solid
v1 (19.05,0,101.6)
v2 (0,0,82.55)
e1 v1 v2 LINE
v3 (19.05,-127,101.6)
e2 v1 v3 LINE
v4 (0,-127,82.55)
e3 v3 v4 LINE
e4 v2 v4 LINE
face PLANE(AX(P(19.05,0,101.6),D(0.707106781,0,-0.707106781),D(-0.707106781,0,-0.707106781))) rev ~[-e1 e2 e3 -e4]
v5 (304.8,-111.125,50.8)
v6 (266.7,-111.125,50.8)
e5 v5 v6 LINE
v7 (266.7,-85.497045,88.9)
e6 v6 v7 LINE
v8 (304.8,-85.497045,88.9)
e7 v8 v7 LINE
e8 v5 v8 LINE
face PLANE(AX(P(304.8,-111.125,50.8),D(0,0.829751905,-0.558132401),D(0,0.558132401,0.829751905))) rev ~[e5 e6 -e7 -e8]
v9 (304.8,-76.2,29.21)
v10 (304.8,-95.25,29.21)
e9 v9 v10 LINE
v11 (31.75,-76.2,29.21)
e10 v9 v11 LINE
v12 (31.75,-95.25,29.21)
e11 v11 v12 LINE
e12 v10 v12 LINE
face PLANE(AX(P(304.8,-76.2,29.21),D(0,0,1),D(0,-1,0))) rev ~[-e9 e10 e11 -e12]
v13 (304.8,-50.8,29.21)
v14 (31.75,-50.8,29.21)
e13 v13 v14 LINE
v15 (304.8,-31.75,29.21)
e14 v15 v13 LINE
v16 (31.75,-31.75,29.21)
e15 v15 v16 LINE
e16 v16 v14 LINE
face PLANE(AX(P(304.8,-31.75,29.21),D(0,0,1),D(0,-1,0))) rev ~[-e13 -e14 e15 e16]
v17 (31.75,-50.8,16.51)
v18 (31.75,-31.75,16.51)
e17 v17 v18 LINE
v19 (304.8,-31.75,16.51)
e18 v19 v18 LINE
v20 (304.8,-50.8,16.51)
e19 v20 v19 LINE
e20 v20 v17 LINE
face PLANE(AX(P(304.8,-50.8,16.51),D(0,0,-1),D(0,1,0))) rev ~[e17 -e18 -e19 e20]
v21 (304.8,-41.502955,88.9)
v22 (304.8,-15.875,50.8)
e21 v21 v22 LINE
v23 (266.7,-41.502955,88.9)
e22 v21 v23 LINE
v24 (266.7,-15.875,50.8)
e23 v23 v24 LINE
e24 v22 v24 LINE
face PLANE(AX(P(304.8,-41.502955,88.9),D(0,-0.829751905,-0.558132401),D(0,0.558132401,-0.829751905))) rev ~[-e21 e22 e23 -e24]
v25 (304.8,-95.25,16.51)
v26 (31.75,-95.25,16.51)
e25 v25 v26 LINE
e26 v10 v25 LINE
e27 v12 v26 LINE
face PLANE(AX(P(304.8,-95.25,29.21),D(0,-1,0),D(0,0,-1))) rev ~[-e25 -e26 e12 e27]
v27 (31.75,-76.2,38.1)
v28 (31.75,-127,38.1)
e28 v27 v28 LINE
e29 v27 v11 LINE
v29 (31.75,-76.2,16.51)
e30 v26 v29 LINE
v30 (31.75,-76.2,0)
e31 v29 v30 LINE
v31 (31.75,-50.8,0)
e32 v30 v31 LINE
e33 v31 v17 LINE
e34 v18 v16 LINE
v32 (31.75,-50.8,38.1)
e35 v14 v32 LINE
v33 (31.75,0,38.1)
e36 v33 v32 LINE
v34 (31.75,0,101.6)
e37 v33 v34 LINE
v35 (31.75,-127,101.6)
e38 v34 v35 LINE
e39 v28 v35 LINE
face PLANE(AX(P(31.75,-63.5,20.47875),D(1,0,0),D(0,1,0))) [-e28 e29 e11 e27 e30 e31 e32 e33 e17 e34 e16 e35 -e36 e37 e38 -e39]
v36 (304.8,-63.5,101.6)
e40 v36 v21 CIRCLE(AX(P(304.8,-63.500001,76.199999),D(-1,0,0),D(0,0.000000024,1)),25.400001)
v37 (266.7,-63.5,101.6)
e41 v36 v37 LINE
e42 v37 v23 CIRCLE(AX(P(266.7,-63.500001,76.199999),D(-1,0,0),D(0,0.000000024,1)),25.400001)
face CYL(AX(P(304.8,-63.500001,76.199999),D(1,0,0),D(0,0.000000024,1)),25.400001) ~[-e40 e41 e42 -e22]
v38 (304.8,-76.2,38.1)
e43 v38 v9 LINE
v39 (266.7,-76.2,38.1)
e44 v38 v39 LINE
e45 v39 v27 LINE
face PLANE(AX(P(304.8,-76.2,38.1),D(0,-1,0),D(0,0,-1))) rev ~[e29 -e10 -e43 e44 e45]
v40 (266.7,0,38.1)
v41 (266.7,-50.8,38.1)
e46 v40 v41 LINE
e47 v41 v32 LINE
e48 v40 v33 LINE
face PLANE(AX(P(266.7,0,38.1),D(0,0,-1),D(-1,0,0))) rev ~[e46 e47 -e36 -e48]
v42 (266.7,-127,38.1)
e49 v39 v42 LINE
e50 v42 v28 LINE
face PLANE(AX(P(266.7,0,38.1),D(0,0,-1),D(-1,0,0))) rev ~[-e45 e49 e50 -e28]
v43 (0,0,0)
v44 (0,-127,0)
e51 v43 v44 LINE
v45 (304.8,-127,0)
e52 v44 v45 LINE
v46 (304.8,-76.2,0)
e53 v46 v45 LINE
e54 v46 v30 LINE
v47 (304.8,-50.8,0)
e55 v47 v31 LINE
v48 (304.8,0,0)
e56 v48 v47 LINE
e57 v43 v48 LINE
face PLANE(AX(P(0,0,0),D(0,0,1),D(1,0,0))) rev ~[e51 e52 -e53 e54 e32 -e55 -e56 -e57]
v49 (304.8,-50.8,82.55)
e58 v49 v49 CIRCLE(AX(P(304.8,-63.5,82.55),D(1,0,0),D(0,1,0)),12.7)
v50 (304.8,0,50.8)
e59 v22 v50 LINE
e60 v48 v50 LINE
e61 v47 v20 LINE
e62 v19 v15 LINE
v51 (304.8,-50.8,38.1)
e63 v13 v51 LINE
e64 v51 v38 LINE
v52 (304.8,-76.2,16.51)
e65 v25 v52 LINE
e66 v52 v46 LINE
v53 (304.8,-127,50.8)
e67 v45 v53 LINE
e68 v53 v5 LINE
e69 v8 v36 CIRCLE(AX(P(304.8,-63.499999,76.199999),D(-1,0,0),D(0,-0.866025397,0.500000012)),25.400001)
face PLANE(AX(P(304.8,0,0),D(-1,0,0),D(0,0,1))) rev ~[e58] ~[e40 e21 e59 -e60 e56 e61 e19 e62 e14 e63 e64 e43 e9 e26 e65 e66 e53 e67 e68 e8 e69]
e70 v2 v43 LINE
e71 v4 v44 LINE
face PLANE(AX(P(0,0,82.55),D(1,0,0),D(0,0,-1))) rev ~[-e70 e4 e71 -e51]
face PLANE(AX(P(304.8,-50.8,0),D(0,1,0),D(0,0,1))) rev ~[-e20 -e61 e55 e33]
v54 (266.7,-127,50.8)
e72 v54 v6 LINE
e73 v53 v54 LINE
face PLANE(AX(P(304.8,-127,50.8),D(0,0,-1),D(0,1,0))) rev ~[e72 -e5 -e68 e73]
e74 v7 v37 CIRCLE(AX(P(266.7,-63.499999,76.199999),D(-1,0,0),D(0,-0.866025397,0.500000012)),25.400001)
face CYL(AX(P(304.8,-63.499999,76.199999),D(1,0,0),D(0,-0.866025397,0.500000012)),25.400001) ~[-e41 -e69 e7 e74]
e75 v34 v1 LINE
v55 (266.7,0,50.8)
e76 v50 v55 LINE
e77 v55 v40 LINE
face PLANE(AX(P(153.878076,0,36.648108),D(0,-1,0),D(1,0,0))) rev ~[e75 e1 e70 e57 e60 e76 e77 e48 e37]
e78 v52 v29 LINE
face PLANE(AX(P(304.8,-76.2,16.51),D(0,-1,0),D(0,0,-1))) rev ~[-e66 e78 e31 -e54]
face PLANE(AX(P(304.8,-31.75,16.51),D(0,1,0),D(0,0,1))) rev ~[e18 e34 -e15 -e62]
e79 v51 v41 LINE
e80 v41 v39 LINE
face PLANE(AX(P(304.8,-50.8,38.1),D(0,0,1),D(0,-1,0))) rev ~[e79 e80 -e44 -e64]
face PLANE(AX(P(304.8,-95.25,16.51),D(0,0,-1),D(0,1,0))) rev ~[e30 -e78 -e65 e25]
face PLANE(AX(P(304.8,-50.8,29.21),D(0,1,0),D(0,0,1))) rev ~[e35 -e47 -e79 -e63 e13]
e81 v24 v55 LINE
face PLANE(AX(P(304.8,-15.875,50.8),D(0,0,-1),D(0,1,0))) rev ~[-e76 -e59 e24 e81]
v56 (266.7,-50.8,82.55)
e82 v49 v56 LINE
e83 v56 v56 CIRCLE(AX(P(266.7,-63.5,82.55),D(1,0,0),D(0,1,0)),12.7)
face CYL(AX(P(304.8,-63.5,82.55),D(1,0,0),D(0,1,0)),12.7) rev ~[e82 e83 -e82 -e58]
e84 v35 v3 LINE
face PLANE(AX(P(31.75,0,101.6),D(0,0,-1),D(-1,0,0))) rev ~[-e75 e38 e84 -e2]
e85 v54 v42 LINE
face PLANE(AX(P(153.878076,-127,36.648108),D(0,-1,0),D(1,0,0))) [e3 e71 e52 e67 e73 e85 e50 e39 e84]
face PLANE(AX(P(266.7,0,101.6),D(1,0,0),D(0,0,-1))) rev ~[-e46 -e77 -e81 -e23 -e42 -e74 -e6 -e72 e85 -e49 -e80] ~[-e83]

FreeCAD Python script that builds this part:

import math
import FreeCAD as App
import Part
import Sketcher

V = App.Vector
Q = App.Units.Quantity

doc = App.newDocument("Part")
body = doc.addObject("PartDesign::Body", "Body")

sketch1 = body.newObject("Sketcher::SketchObject", "Sketch")
sketch1.AttachmentSupport = (doc.getObject("XZ_Plane"), [""])
sketch1.MapMode = "FlatFace"
sketch1.addGeometry([
    Part.LineSegment(V(0, 82.55, 0), V(0, 0, 0)),
    Part.LineSegment(V(0, 0, 0), V(304.8, 0, 0)),
    Part.LineSegment(V(304.8, 0, 0), V(304.8, 101.6, 0)),
    Part.LineSegment(V(304.8, 101.6, 0), V(266.7, 101.6, 0)),
    Part.LineSegment(V(266.7, 101.6, 0), V(266.7, 38.1, 0)),
    Part.LineSegment(V(266.7, 38.1, 0), V(31.75, 38.1, 0)),
    Part.LineSegment(V(31.75, 38.1, 0), V(31.75, 101.6, 0)),
    Part.LineSegment(V(31.75, 101.6, 0), V(19.05, 101.6, 0)),
    Part.LineSegment(V(19.05, 101.6, 0), V(0, 82.55, 0)),
], False)
sketch1.addConstraint([
    Sketcher.Constraint("Coincident", 0, 2, 1, 1),
    Sketcher.Constraint("Coincident", 1, 2, 2, 1),
    Sketcher.Constraint("Coincident", 2, 2, 3, 1),
    Sketcher.Constraint("Coincident", 3, 2, 4, 1),
    Sketcher.Constraint("Coincident", 4, 2, 5, 1),
    Sketcher.Constraint("Coincident", 5, 2, 6, 1),
    Sketcher.Constraint("Coincident", 6, 2, 7, 1),
    Sketcher.Constraint("Coincident", 7, 2, 8, 1),
    Sketcher.Constraint("Coincident", 8, 2, 0, 1),
    Sketcher.Constraint("Vertical", 0),
    Sketcher.Constraint("Horizontal", 1),
    Sketcher.Constraint("Vertical", 2),
    Sketcher.Constraint("Horizontal", 3),
    Sketcher.Constraint("Vertical", 4),
    Sketcher.Constraint("Horizontal", 5),
    Sketcher.Constraint("Vertical", 6),
    Sketcher.Constraint("Horizontal", 7),
    Sketcher.Constraint("Coincident", 0, 2, -1, 1),
    Sketcher.Constraint("Horizontal", 3, 2, 6, 2),
    Sketcher.Constraint("DistanceX", 1, 1, 1, 2, Q("12 in")),
    Sketcher.Constraint("DistanceY", 2, 1, 2, 2, Q("4 in")),
    Sketcher.Constraint("DistanceX", 3, 2, 3, 1, Q("1.5 in")),
    Sketcher.Constraint("DistanceX", 7, 2, 7, 1, Q("0.5 in")),
    Sketcher.Constraint("DistanceY", 4, 2, 4, 1, Q("2.5 in")),
    Sketcher.Constraint("Angle", 8, Q("-135 deg")),
    Sketcher.Constraint("DistanceX", 5, 2, 5, 1, Q("9.25 in")),
])
pad1 = body.newObject("PartDesign::Pad", "Pad")
pad1.Profile = sketch1
pad1.Length = Q("5 in")

sketch2 = body.newObject("Sketcher::SketchObject", "Sketch001")
sketch2.AttachmentSupport = (doc.getObject("YZ_Plane"), [""])
sketch2.MapMode = "FlatFace"
sketch2.AttachmentOffset = App.Placement(V(0, 0, 12 * 25.4), App.Rotation())
sketch2.addGeometry([
    Part.LineSegment(V(-127, 101.6, 0), V(-127, 50.8, 0)),
    Part.LineSegment(V(-127, 50.8, 0), V(-111.125, 50.8, 0)),
    Part.LineSegment(V(-111.125, 50.8, 0), V(-85.497045, 88.9, 0)),
    Part.ArcOfCircle(Part.Circle(V(-63.499999, 76.199999, 0), V(0, 0, 1), 25.400001), math.radians(90.000001), math.radians(149.999999)),
    Part.LineSegment(V(-63.5, 101.6, 0), V(-127, 101.6, 0)),
    Part.LineSegment(V(0, 101.6, 0), V(-63.5, 101.6, 0)),
    Part.ArcOfCircle(Part.Circle(V(-63.500001, 76.199999, 0), V(0, 0, 1), 25.400001), math.radians(30.000001), math.radians(89.999999)),
    Part.LineSegment(V(-41.502955, 88.9, 0), V(-15.875, 50.8, 0)),
    Part.LineSegment(V(-15.875, 50.8, 0), V(0, 50.8, 0)),
    Part.LineSegment(V(0, 50.8, 0), V(0, 101.6, 0)),
], False)
sketch2.addConstraint([
    Sketcher.Constraint("Coincident", 0, 2, 1, 1),
    Sketcher.Constraint("Coincident", 1, 2, 2, 1),
    Sketcher.Constraint("Coincident", 2, 2, 3, 2),
    Sketcher.Constraint("Tangent", 3, 1, 4, 1),
    Sketcher.Constraint("Coincident", 4, 2, 0, 1),
    Sketcher.Constraint("Tangent", 5, 2, 6, 2),
    Sketcher.Constraint("Coincident", 6, 1, 7, 1),
    Sketcher.Constraint("Coincident", 7, 2, 8, 1),
    Sketcher.Constraint("Coincident", 8, 2, 9, 1),
    Sketcher.Constraint("Coincident", 9, 2, 5, 1),
    Sketcher.Constraint("Vertical", 0),
    Sketcher.Constraint("Horizontal", 1),
    Sketcher.Constraint("Horizontal", 4),
    Sketcher.Constraint("Horizontal", 5),
    Sketcher.Constraint("Horizontal", 8),
    Sketcher.Constraint("Vertical", 9),
    Sketcher.Constraint("Coincident", 6, 3, 3, 3),
    Sketcher.Constraint("Equal", 3, 6),
    Sketcher.Constraint("PointOnObject", 8, 2, -2),
    Sketcher.Constraint("Horizontal", 2, 2, 6, 1),
    Sketcher.Constraint("Horizontal", 1, 2, 7, 2),
    Sketcher.Constraint("Equal", 4, 5),
    Sketcher.Constraint("Equal", 1, 8),
    Sketcher.Constraint("Radius", 3, Q("1 in")),
    Sketcher.Constraint("DistanceY", 0, 2, 0, 1, Q("2 in")),
    Sketcher.Constraint("DistanceX", 4, 2, 4, 1, Q("2.5 in")),
    Sketcher.Constraint("DistanceY", -1, 1, 3, 3, Q("3 in")),
    Sketcher.Constraint("DistanceY", -1, 1, 2, 2, Q("3.5 in")),
    Sketcher.Constraint("DistanceX", 1, 1, 1, 2, Q("0.625 in")),
])
pocket1 = body.newObject("PartDesign::Pocket", "Pocket")
pocket1.Profile = sketch2
pocket1.Length = Q("1.5 in")

sketch3 = body.newObject("Sketcher::SketchObject", "Sketch002")
sketch3.AttachmentSupport = (doc.getObject("YZ_Plane"), [""])
sketch3.MapMode = "FlatFace"
sketch3.AttachmentOffset = App.Placement(V(0, 0, 12 * 25.4), App.Rotation())
sketch3.addGeometry([
    Part.LineSegment(V(-76.2, 16.51, 0), V(-76.2, 0, 0)),
    Part.LineSegment(V(-76.2, 0, 0), V(-50.8, 0, 0)),
    Part.LineSegment(V(-50.8, 0, 0), V(-50.8, 16.51, 0)),
    Part.LineSegment(V(-50.8, 16.51, 0), V(-31.75, 16.51, 0)),
    Part.LineSegment(V(-31.75, 16.51, 0), V(-31.75, 29.21, 0)),
    Part.LineSegment(V(-31.75, 29.21, 0), V(-50.8, 29.21, 0)),
    Part.LineSegment(V(-50.8, 29.21, 0), V(-50.8, 38.1, 0)),
    Part.LineSegment(V(-50.8, 38.1, 0), V(-76.2, 38.1, 0)),
    Part.LineSegment(V(-76.2, 38.1, 0), V(-76.2, 29.21, 0)),
    Part.LineSegment(V(-76.2, 29.21, 0), V(-95.25, 29.21, 0)),
    Part.LineSegment(V(-95.25, 29.21, 0), V(-95.25, 16.51, 0)),
    Part.LineSegment(V(-95.25, 16.51, 0), V(-76.2, 16.51, 0)),
], False)
sketch3.addConstraint([
    Sketcher.Constraint("Coincident", 0, 2, 1, 1),
    Sketcher.Constraint("Coincident", 1, 2, 2, 1),
    Sketcher.Constraint("Coincident", 2, 2, 3, 1),
    Sketcher.Constraint("Coincident", 3, 2, 4, 1),
    Sketcher.Constraint("Coincident", 4, 2, 5, 1),
    Sketcher.Constraint("Coincident", 5, 2, 6, 1),
    Sketcher.Constraint("Coincident", 6, 2, 7, 1),
    Sketcher.Constraint("Coincident", 7, 2, 8, 1),
    Sketcher.Constraint("Coincident", 8, 2, 9, 1),
    Sketcher.Constraint("Coincident", 9, 2, 10, 1),
    Sketcher.Constraint("Coincident", 10, 2, 11, 1),
    Sketcher.Constraint("Coincident", 11, 2, 0, 1),
    Sketcher.Constraint("Vertical", 0),
    Sketcher.Constraint("Horizontal", 1),
    Sketcher.Constraint("Vertical", 2),
    Sketcher.Constraint("Horizontal", 3),
    Sketcher.Constraint("Vertical", 4),
    Sketcher.Constraint("Horizontal", 5),
    Sketcher.Constraint("Vertical", 6),
    Sketcher.Constraint("Horizontal", 7),
    Sketcher.Constraint("Vertical", 8),
    Sketcher.Constraint("Horizontal", 9),
    Sketcher.Constraint("Vertical", 10),
    Sketcher.Constraint("Horizontal", 11),
    Sketcher.Constraint("PointOnObject", 0, 2, -1),
    Sketcher.Constraint("Horizontal", 5, 2, 8, 2),
    Sketcher.Constraint("Horizontal", 3, 2, 10, 2),
    Sketcher.Constraint("Vertical", 2, 2, 5, 2),
    Sketcher.Constraint("Vertical", 0, 2, 7, 2),
    Sketcher.Constraint("Equal", 5, 9),
    Sketcher.Constraint("DistanceX", 1, 1, 1, 2, Q("1 in")),
    Sketcher.Constraint("DistanceY", 4, 1, 4, 2, Q("0.5 in")),
    Sketcher.Constraint("DistanceX", 0, 2, -1, 1, Q("3 in")),
    Sketcher.Constraint("DistanceX", 3, 1, 3, 2, Q("0.75 in")),
    Sketcher.Constraint("DistanceY", 0, 2, 0, 1, Q("0.65 in")),
    Sketcher.Constraint("DistanceY", 6, 1, 6, 2, Q("0.35 in")),
])
pocket2 = body.newObject("PartDesign::Pocket", "Pocket001")
pocket2.Profile = sketch3
pocket2.Length = Q("10.75 in")

sketch4 = body.newObject("Sketcher::SketchObject", "Sketch003")
sketch4.AttachmentSupport = (doc.getObject("YZ_Plane"), [""])
sketch4.MapMode = "FlatFace"
sketch4.AttachmentOffset = App.Placement(V(0, 0, 12 * 25.4), App.Rotation())
sketch4.addGeometry(Part.Circle(V(-63.5, 82.55, 0), V(0, 0, 1), 12.7), False)
sketch4.addConstraint([
    Sketcher.Constraint("Diameter", 0, Q("1 in")),
    Sketcher.Constraint("DistanceX", 0, 3, -1, 1, Q("2.5 in")),
    Sketcher.Constraint("DistanceY", -1, 1, 0, 3, Q("3.25 in")),
])
pocket3 = body.newObject("PartDesign::Pocket", "Pocket002")
pocket3.Profile = sketch4
pocket3.Length = Q("1.5 in")

doc.recompute()
